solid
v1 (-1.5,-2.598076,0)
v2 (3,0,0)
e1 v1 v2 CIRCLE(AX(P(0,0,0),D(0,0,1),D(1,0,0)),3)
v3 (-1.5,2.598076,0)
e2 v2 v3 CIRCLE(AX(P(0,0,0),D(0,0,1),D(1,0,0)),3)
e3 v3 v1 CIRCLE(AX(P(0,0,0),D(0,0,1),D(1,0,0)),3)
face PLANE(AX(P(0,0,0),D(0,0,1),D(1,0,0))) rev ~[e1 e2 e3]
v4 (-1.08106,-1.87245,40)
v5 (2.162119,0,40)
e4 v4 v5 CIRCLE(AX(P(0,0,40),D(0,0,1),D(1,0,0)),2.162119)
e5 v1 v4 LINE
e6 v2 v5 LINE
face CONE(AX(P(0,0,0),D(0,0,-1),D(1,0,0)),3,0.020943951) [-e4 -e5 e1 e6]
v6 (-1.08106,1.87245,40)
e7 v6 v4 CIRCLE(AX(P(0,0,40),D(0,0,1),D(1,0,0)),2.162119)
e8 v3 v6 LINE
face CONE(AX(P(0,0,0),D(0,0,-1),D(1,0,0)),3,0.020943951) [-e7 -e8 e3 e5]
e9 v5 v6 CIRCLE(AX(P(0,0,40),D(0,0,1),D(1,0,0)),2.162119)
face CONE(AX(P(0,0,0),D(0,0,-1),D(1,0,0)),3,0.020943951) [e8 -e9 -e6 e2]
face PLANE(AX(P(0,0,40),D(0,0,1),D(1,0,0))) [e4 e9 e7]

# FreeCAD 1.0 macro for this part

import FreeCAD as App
import Part
import Sketcher
from FreeCAD import Vector
Q = App.Units.Quantity

doc = App.newDocument("Part")
body = doc.addObject("PartDesign::Body", "Body")

sketch1 = body.newObject("Sketcher::SketchObject", "Sketch")
sketch1.AttachmentSupport = (doc.getObject("XY_Plane"), [""])
sketch1.MapMode = "FlatFace"
sketch1.addGeometry(Part.Circle(Vector(0, 0, 0), Vector(0, 0, 1), 3), False)
sketch1.addConstraint(Sketcher.Constraint("Coincident", 0, 3, -1, 1))
sketch1.addConstraint(Sketcher.Constraint("Diameter", 0, Q("6 mm")))
pad1 = body.newObject("PartDesign::Pad", "Pad")
pad1.Profile = sketch1
pad1.Length = 40
pad1.TaperAngle = -1.2

doc.recompute()
